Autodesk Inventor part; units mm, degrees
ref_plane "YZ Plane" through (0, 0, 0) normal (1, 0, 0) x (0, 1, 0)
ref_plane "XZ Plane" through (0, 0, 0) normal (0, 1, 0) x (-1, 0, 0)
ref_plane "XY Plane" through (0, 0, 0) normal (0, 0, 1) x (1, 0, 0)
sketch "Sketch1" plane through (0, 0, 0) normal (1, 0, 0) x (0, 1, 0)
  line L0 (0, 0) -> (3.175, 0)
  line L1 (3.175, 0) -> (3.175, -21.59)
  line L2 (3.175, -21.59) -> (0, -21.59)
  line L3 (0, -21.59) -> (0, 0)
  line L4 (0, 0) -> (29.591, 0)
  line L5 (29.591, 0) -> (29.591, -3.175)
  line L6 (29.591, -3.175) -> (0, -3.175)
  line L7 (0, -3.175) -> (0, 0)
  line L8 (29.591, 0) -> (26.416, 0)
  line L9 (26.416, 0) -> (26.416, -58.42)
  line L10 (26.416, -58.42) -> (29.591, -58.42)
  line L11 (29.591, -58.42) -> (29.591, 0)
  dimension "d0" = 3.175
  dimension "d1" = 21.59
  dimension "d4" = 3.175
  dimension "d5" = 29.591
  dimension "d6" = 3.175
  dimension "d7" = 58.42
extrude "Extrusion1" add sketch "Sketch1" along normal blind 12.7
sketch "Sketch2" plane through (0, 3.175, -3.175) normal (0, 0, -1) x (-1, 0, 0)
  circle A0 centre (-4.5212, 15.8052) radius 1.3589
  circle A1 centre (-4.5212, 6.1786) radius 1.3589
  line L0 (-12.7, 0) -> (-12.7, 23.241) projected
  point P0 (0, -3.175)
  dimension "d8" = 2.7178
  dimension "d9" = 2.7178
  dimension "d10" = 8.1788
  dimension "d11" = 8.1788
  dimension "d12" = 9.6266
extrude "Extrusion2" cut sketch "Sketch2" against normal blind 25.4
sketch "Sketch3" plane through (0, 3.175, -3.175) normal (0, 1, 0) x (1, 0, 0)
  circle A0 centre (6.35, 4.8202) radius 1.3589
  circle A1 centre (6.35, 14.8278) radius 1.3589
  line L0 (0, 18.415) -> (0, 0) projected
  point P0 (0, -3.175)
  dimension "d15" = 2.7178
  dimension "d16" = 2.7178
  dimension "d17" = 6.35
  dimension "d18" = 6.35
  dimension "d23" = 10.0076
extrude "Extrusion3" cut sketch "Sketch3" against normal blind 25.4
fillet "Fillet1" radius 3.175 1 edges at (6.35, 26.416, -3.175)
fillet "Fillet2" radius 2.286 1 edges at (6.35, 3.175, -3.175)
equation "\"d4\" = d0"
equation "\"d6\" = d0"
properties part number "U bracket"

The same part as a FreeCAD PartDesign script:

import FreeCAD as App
import Part
import Sketcher
from FreeCAD import Vector
Q = App.Units.Quantity


def edges_at(feature, points):
    """Names of the edges that pass closest to the given points."""
    edges = feature.Shape.Edges
    near = lambda p: min(range(len(edges)), key=lambda i: edges[i].distToShape(Part.Vertex(*p))[0])
    return sorted({f"Edge{near(p) + 1}" for p in points})

doc = App.newDocument("Part")
body = doc.addObject("PartDesign::Body", "Body")

# Sketch on YZ plane
sketch1 = doc.addObject("Sketcher::SketchObject", "Sketch")
body.addObject(sketch1)
sketch1.AttachmentSupport = (doc.YZ_Plane, [""])
sketch1.MapMode = "FlatFace"
sketch1.addGeometry(Part.LineSegment(Vector(0, 0, 0), Vector(0, -21.6, 0)), False)
sketch1.addGeometry(Part.LineSegment(Vector(0, -21.6, 0), Vector(3.2, -21.6, 0)), False)
sketch1.addGeometry(Part.LineSegment(Vector(3.2, -21.6, 0), Vector(3.2, -3.2, 0)), False)
sketch1.addGeometry(Part.LineSegment(Vector(3.2, -3.2, 0), Vector(26.4, -3.2, 0)), False)
sketch1.addGeometry(Part.LineSegment(Vector(26.4, -3.2, 0), Vector(26.4, -58.4, 0)), False)
sketch1.addGeometry(Part.LineSegment(Vector(26.4, -58.4, 0), Vector(29.6, -58.4, 0)), False)
sketch1.addGeometry(Part.LineSegment(Vector(29.6, -58.4, 0), Vector(29.6, 0, 0)), False)
sketch1.addGeometry(Part.LineSegment(Vector(29.6, 0, 0), Vector(0, 0, 0)), False)
sketch1.addConstraint(Sketcher.Constraint("Coincident", 0, 2, 1, 1))
sketch1.addConstraint(Sketcher.Constraint("Coincident", 1, 2, 2, 1))
sketch1.addConstraint(Sketcher.Constraint("Coincident", 2, 2, 3, 1))
sketch1.addConstraint(Sketcher.Constraint("Coincident", 3, 2, 4, 1))
sketch1.addConstraint(Sketcher.Constraint("Coincident", 4, 2, 5, 1))
sketch1.addConstraint(Sketcher.Constraint("Coincident", 5, 2, 6, 1))
sketch1.addConstraint(Sketcher.Constraint("Coincident", 6, 2, 7, 1))
sketch1.addConstraint(Sketcher.Constraint("Coincident", 7, 2, 0, 1))
sketch1.addConstraint(Sketcher.Constraint("Vertical", 0))
sketch1.addConstraint(Sketcher.Constraint("Horizontal", 1))
sketch1.addConstraint(Sketcher.Constraint("Vertical", 2))
sketch1.addConstraint(Sketcher.Constraint("Horizontal", 3))
sketch1.addConstraint(Sketcher.Constraint("Vertical", 4))
sketch1.addConstraint(Sketcher.Constraint("Horizontal", 5))
sketch1.addConstraint(Sketcher.Constraint("Vertical", 6))
sketch1.addConstraint(Sketcher.Constraint("Horizontal", 7))
sketch1.addConstraint(Sketcher.Constraint("Coincident", 7, 2, -1, 1))
sketch1.addConstraint(Sketcher.Constraint("Equal", 1, 5))
sketch1.addConstraint(Sketcher.Constraint("DistanceY", 6, 1, 6, 2, Q("2.3 in")))
sketch1.addConstraint(Sketcher.Constraint("DistanceY", 0, 2, 0, 1, Q("0.85 in")))
sketch1.addConstraint(Sketcher.Constraint("DistanceX", 1, 1, 1, 2, Q("0.125 in")))
sketch1.addConstraint(Sketcher.Constraint("DistanceX", 7, 2, 7, 1, Q("1.165 in")))
sketch1.addConstraint(Sketcher.Constraint("DistanceY", 2, 2, -1, 1, Q("0.125 in")))
pad1 = doc.addObject("PartDesign::Pad", "Pad")
body.addObject(pad1)
pad1.Profile = sketch1
pad1.Length = Q("0.5 in")

# Sketch on XY plane
sketch2 = doc.addObject("Sketcher::SketchObject", "Sketch001")
body.addObject(sketch2)
sketch2.AttachmentSupport = (doc.XY_Plane, [""])
sketch2.MapMode = "FlatFace"
sketch2.AttachmentOffset = App.Placement(Vector(0, 0, -0.125 * 25.4), App.Rotation())
sketch2.addGeometry(Part.Circle(Vector(4.5, 19, 0), Vector(0, 0, 1), 1.4), False)
sketch2.addGeometry(Part.Circle(Vector(4.5, 9.4, 0), Vector(0, 0, 1), 1.4), False)
sketch2.addConstraint(Sketcher.Constraint("Equal", 0, 1))
sketch2.addConstraint(Sketcher.Constraint("Vertical", 0, 3, 1, 3))
sketch2.addConstraint(Sketcher.Constraint("Diameter", 0, Q("0.107 in")))
sketch2.addConstraint(Sketcher.Constraint("DistanceY", 1, 3, 0, 3, Q("0.379 in")))
sketch2.addConstraint(Sketcher.Constraint("DistanceX", -1, 1, 0, 3, Q("0.178 in")))
sketch2.addConstraint(Sketcher.Constraint("DistanceY", -1, 1, 0, 3, 18.9802))
pocket1 = doc.addObject("PartDesign::Pocket", "Pocket")
body.addObject(pocket1)
pocket1.Profile = sketch2
pocket1.Length = Q("1 in")
pocket1.Reversed = True

# Sketch on XZ plane
sketch3 = doc.addObject("Sketcher::SketchObject", "Sketch002")
body.addObject(sketch3)
sketch3.AttachmentSupport = (doc.XZ_Plane, [""])
sketch3.MapMode = "FlatFace"
sketch3.AttachmentOffset = App.Placement(Vector(0, 0, -0.125 * 25.4), App.Rotation())
sketch3.addGeometry(Part.Circle(Vector(6.3, -8, 0), Vector(0, 0, 1), 1.4), False)
sketch3.addGeometry(Part.Circle(Vector(6.3, -18, 0), Vector(0, 0, 1), 1.4), False)
sketch3.addConstraint(Sketcher.Constraint("Equal", 0, 1))
sketch3.addConstraint(Sketcher.Constraint("Vertical", 0, 3, 1, 3))
sketch3.addConstraint(Sketcher.Constraint("Diameter", 0, Q("0.107 in")))
sketch3.addConstraint(Sketcher.Constraint("DistanceX", -1, 1, 0, 3, Q("0.25 in")))
sketch3.addConstraint(Sketcher.Constraint("DistanceY", 1, 3, 0, 3, Q("0.394 in")))
sketch3.addConstraint(Sketcher.Constraint("DistanceY", 0, 3, -1, 1, 7.9952))
pocket2 = doc.addObject("PartDesign::Pocket", "Pocket001")
body.addObject(pocket2)
pocket2.Profile = sketch3
pocket2.Length = Q("1 in")
pocket2.Reversed = True
doc.recompute()

fillet = doc.addObject("PartDesign::Fillet", "Fillet")
body.addObject(fillet)
fillet.Base = (pocket2, edges_at(pocket2, [(6.35, 26.416, -3.175)]))
fillet.Radius = Q("0.125 in")
doc.recompute()

fillet2 = doc.addObject("PartDesign::Fillet", "Fillet001")
body.addObject(fillet2)
fillet2.Base = (fillet, edges_at(fillet, [(6.35, 3.175, -3.175)]))
fillet2.Radius = Q("0.09 in")

doc.recompute()
